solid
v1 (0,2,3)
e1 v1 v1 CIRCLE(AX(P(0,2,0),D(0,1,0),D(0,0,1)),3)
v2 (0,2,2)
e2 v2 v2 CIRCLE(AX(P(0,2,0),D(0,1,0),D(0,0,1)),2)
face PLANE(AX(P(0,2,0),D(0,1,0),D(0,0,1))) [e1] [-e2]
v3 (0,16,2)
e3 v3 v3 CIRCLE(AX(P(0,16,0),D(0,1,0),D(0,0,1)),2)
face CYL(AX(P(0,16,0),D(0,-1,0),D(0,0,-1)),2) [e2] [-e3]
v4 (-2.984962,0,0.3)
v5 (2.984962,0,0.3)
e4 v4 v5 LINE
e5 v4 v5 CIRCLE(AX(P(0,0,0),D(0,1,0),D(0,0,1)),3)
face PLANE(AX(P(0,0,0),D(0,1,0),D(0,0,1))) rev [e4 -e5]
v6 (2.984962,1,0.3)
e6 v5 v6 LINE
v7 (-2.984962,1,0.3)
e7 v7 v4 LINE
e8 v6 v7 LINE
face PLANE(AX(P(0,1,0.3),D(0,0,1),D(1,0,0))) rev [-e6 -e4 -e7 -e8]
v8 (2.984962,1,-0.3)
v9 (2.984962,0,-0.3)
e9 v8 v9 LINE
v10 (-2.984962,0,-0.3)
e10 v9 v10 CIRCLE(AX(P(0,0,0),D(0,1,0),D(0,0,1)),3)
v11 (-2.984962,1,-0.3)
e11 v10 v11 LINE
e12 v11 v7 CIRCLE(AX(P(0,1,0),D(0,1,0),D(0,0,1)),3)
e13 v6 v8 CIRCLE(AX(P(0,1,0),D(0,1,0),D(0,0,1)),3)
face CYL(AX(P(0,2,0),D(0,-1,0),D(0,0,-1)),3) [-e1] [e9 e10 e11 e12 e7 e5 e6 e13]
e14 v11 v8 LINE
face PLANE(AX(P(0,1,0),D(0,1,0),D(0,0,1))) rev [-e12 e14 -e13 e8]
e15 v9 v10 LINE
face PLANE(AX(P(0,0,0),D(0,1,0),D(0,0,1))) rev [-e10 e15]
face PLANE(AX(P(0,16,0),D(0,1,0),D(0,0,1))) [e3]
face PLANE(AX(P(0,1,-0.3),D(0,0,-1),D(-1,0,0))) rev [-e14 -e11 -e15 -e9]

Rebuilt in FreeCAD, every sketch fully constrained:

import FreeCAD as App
import Part
import Sketcher
from FreeCAD import Vector


def add_polygon(sketch, points):
    """Adds a closed chain of lines whose ends are joined by coincident constraints."""
    first, n = sketch.GeometryCount, len(points)
    for a, b in zip(points, points[1:] + points[:1]):
        sketch.addGeometry(Part.LineSegment(App.Vector(*a, 0), App.Vector(*b, 0)), False)
    for i in range(n):
        sketch.addConstraint(Sketcher.Constraint("Coincident", first + i, 2, first + (i + 1) % n, 1))

doc = App.newDocument("Part")
body = doc.addObject("PartDesign::Body", "Body")

# Sketch on XZ plane
sketch1 = body.newObject("Sketcher::SketchObject", "Sketch")
sketch1.AttachmentSupport = (doc.getObject("XZ_Plane"), [""])
sketch1.MapMode = "FlatFace"
sketch1.addGeometry(Part.Circle(Vector(0, 0, 0), Vector(0, 0, 1), 3), False)
sketch1.addConstraint([
    Sketcher.Constraint("Coincident", 0, 3, -1, 1),
    Sketcher.Constraint("Diameter", 0, 6.0),
])
pad1 = body.newObject("PartDesign::Pad", "Pad")
pad1.Profile = sketch1
pad1.Length = 2
pad1.Reversed = True

# Sketch on XZ plane
sketch2 = body.newObject("Sketcher::SketchObject", "Sketch001")
sketch2.AttachmentSupport = (doc.getObject("XZ_Plane"), [""])
sketch2.MapMode = "FlatFace"
sketch2.AttachmentOffset = App.Placement(Vector(0, 0, -2), App.Rotation())
sketch2.addGeometry(Part.Circle(Vector(0, 0, 0), Vector(0, 0, 1), 2), False)
sketch2.addConstraint([
    Sketcher.Constraint("Coincident", 0, 3, -1, 1),
    Sketcher.Constraint("Diameter", 0, 4.0),
])
pad2 = body.newObject("PartDesign::Pad", "Pad001")
pad2.Profile = sketch2
pad2.Length = 14
pad2.Reversed = True

# Sketch on XZ plane
sketch3 = body.newObject("Sketcher::SketchObject", "Sketch002")
sketch3.AttachmentSupport = (doc.getObject("XZ_Plane"), [""])
sketch3.MapMode = "FlatFace"
add_polygon(sketch3, [(3.3, 0.3), (-3.5, 0.3), (-3.5, -0.3), (3.3, -0.3)])  # lines 0-3
sketch3.addConstraint([
    Sketcher.Constraint("Horizontal", 0),
    Sketcher.Constraint("Vertical", 1),
    Sketcher.Constraint("Horizontal", 2),
    Sketcher.Constraint("Vertical", 3),
    Sketcher.Constraint("DistanceY", 1, 2, 1, 1, 0.6),
    Sketcher.Constraint("DistanceY", -1, 1, 0, 2, 0.3),
    Sketcher.Constraint("DistanceX", 0, 2, 0, 1, 6.852942),
    Sketcher.Constraint("DistanceX", -1, 1, 2, 2, 3.344738),
])
pocket1 = body.newObject("PartDesign::Pocket", "Pocket")
pocket1.Profile = sketch3
pocket1.Length = 1

doc.recompute()
